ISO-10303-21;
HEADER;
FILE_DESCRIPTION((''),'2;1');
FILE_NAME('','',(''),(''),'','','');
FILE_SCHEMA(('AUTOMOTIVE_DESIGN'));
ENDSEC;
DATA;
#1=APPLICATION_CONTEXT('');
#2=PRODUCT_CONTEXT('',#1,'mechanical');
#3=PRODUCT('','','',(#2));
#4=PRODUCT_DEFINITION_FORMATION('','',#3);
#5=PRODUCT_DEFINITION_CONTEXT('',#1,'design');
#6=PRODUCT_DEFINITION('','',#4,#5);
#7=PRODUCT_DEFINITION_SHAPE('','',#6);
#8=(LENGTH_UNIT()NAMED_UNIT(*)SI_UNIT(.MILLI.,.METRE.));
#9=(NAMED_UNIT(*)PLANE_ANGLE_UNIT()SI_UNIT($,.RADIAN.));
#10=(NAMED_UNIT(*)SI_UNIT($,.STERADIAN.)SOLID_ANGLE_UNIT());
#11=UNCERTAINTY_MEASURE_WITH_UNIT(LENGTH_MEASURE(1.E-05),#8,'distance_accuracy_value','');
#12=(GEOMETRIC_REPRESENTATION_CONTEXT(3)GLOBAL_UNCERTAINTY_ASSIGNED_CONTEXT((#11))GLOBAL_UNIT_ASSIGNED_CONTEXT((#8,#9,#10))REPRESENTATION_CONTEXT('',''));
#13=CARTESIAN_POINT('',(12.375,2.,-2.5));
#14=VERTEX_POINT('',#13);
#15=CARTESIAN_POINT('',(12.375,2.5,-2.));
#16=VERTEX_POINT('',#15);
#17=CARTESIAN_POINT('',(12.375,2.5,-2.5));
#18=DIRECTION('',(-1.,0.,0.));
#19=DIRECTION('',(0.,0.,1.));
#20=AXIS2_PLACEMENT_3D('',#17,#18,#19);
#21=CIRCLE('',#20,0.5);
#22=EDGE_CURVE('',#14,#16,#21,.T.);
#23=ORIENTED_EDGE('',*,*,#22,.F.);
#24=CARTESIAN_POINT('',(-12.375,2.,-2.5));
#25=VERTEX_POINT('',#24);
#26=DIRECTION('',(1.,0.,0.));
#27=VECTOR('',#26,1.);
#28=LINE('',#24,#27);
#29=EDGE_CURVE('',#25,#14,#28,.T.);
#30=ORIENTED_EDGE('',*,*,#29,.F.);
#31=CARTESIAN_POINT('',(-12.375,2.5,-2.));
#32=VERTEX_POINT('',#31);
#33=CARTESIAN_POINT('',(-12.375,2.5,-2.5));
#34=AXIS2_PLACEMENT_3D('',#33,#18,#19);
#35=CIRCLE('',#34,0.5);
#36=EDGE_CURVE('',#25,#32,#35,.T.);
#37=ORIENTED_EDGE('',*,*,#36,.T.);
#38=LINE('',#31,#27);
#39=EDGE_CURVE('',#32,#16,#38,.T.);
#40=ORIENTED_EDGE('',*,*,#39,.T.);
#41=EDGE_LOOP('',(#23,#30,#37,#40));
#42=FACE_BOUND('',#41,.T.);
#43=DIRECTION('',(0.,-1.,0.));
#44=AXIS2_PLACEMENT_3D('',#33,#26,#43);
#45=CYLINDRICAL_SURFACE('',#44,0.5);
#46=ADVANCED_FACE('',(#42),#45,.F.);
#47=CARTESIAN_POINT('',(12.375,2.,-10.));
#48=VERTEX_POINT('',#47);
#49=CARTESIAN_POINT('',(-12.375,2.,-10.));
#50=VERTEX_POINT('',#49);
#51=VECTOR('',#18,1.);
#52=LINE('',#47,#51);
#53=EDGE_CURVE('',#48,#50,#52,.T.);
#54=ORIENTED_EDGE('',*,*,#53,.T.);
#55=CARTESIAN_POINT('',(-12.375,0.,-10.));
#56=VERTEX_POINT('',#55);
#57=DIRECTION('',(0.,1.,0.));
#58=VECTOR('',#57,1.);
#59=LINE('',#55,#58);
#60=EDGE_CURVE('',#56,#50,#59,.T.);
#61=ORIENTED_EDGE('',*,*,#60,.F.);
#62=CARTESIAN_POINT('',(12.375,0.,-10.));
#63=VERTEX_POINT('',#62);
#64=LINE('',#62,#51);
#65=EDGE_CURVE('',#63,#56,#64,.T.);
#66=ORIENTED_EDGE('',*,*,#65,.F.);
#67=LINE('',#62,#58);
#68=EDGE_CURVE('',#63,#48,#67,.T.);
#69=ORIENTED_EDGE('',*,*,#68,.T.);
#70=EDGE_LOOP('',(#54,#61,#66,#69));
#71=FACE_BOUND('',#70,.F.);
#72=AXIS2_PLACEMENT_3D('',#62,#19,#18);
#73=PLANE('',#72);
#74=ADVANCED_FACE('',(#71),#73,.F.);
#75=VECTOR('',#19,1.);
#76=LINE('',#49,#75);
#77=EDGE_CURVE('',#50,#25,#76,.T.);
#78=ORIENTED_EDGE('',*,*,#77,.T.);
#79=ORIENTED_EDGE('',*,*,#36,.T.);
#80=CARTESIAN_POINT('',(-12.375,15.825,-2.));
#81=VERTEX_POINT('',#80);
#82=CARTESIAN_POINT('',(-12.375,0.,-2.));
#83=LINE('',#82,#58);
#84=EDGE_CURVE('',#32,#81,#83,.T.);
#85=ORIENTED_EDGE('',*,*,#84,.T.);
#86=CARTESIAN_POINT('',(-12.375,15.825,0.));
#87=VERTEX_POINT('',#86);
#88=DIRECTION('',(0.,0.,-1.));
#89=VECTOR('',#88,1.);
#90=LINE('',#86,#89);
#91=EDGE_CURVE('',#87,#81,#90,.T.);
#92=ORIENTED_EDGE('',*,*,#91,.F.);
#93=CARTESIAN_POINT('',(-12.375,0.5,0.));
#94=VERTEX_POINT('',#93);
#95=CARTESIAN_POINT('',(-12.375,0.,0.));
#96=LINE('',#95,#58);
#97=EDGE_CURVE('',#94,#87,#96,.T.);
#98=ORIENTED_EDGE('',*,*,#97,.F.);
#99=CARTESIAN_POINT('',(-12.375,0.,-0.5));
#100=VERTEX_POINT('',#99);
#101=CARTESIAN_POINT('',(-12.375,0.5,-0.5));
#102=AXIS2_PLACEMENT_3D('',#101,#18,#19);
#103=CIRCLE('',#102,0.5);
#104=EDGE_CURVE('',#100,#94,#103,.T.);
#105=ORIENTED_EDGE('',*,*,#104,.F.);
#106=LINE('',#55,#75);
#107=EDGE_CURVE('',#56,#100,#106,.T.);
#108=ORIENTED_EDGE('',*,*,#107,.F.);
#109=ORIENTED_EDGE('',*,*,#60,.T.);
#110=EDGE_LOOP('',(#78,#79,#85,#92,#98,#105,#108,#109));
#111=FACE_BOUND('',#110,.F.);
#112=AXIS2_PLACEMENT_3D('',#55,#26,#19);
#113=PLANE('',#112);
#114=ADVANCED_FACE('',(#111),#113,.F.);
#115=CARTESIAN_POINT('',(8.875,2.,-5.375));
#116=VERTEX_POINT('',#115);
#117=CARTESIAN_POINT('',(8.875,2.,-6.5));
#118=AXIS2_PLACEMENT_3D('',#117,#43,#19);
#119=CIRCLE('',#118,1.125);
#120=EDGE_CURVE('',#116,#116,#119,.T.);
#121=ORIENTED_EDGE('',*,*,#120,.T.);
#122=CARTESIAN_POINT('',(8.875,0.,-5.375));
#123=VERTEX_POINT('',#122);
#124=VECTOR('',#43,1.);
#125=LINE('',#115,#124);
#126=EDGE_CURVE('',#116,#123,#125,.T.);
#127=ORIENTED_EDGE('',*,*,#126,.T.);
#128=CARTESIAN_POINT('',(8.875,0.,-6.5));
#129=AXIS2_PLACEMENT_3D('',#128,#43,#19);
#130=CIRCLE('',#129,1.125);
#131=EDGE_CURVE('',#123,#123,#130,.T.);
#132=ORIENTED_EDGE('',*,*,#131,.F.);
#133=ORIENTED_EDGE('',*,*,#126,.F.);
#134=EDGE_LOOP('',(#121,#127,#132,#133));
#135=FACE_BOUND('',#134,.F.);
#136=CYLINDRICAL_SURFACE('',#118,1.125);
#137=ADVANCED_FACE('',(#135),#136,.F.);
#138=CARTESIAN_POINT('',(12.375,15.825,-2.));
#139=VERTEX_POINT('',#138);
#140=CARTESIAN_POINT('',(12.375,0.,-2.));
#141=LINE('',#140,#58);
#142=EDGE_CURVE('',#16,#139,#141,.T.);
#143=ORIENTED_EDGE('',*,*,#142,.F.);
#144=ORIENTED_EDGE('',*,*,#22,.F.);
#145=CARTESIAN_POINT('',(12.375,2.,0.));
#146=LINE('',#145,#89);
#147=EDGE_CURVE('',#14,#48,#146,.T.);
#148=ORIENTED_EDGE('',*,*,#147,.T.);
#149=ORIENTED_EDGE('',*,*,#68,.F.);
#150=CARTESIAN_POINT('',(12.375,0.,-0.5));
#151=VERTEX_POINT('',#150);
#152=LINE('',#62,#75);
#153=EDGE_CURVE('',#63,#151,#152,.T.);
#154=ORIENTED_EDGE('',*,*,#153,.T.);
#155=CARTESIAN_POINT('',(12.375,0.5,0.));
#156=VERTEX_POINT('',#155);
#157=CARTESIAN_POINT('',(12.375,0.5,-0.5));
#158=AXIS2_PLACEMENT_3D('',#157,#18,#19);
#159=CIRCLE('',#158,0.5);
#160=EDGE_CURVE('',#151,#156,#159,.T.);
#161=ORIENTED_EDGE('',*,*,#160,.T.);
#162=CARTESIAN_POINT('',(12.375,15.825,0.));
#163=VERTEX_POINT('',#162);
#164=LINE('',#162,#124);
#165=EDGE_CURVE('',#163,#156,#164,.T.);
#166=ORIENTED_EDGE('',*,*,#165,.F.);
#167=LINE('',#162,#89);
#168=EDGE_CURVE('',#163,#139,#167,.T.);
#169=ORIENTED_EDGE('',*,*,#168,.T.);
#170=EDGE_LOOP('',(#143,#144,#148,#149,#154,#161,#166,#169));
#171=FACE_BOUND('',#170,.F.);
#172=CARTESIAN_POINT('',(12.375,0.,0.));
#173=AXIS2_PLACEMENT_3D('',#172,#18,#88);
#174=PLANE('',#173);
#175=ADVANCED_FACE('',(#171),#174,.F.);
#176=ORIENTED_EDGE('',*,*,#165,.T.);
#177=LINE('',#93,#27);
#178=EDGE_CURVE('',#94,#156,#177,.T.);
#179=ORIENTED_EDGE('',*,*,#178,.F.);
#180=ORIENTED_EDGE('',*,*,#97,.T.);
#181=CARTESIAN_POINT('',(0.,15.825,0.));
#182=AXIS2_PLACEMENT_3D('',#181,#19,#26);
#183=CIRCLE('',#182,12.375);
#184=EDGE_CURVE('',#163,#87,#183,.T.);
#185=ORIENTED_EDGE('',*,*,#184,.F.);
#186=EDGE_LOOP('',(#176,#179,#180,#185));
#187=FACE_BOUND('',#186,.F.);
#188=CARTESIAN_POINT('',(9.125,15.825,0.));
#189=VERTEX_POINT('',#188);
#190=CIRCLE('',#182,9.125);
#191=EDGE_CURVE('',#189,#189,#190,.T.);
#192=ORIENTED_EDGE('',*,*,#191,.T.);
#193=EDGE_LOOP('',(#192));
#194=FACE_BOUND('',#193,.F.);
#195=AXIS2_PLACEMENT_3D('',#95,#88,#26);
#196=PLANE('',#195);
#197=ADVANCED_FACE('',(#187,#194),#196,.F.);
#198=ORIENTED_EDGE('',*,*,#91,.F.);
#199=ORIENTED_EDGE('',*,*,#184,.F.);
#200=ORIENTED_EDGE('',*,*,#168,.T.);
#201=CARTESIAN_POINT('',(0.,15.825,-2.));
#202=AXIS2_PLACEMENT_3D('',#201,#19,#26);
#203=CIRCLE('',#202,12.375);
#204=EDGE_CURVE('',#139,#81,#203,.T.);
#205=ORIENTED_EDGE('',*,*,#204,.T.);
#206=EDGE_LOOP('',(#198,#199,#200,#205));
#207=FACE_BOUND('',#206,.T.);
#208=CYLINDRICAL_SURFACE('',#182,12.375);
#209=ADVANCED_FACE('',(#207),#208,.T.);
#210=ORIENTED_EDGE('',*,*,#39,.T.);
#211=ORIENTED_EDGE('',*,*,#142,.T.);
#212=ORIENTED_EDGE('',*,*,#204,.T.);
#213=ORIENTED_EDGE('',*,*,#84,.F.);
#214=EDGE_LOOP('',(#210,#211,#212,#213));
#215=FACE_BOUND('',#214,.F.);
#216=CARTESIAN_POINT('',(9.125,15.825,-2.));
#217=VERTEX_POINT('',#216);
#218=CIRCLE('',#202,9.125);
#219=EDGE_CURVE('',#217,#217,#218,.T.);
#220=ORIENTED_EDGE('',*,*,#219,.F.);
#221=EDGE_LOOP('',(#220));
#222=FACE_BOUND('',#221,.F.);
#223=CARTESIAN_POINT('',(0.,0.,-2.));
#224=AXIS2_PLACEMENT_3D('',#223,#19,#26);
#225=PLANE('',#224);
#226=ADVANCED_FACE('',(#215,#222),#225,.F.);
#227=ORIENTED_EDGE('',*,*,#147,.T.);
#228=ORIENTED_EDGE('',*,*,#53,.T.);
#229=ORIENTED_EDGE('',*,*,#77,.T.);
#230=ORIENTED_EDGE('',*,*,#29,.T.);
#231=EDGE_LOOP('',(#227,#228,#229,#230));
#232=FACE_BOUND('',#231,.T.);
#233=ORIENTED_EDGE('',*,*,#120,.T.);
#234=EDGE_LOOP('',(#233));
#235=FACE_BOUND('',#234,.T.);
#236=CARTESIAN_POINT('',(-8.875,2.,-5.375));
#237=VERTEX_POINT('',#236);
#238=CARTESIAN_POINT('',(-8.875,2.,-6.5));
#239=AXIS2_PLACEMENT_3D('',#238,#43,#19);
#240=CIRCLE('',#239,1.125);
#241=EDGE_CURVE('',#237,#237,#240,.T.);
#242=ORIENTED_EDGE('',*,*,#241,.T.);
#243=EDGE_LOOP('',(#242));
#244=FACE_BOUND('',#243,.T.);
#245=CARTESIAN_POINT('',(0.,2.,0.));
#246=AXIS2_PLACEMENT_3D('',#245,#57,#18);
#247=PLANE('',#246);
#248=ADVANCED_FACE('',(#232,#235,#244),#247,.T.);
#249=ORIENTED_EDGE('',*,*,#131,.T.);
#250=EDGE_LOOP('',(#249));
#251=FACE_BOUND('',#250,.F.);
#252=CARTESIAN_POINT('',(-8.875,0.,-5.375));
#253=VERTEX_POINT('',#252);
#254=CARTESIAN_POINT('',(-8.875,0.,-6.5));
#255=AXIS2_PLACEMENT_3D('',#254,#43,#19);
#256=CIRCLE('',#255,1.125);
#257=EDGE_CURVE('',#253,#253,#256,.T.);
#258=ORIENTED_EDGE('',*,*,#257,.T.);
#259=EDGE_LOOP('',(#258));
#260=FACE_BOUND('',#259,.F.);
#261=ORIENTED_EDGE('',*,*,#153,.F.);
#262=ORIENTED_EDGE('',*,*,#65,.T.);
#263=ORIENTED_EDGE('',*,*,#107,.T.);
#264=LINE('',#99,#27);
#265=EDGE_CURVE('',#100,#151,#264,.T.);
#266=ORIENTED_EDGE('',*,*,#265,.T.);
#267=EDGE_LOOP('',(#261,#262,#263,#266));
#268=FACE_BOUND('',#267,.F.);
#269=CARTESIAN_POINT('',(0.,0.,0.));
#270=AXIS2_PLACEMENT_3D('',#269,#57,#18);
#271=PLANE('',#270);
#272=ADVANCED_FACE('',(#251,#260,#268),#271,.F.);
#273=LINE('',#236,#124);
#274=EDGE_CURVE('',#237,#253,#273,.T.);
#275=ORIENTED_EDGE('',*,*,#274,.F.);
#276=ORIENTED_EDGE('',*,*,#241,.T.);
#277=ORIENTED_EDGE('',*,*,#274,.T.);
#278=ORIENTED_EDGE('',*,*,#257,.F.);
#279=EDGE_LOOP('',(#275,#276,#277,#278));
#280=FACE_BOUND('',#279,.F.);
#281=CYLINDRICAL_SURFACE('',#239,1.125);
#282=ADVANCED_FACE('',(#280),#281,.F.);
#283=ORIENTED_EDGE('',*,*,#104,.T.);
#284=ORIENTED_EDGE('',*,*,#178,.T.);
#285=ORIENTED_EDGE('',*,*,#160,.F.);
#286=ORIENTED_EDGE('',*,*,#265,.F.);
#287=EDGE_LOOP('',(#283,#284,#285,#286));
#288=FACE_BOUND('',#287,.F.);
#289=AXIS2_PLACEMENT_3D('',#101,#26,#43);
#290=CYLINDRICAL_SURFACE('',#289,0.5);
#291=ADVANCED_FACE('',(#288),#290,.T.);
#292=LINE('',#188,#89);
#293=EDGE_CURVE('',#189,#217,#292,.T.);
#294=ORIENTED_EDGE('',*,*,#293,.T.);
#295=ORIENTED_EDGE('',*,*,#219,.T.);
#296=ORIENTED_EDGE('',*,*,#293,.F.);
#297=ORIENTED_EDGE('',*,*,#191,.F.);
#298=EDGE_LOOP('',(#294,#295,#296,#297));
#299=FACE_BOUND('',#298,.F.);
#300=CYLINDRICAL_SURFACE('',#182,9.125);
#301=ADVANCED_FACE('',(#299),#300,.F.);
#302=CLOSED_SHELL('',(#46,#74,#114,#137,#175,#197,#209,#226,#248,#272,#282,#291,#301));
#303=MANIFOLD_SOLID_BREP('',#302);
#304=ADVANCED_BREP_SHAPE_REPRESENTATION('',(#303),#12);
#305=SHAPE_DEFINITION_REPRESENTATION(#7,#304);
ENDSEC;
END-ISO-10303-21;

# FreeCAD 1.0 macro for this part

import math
import FreeCAD as App
import Part
import Sketcher

V = App.Vector
Q = App.Units.Quantity


def edges_at(feature, points):
    """Names of the edges that pass closest to the given points."""
    edges = feature.Shape.Edges
    near = lambda p: min(range(len(edges)), key=lambda i: edges[i].distToShape(Part.Vertex(*p))[0])
    return sorted({f"Edge{near(p) + 1}" for p in points})


def add_polygon(sketch, points):
    """Adds a closed chain of lines whose ends are joined by coincident constraints."""
    first, n = sketch.GeometryCount, len(points)
    for a, b in zip(points, points[1:] + points[:1]):
        sketch.addGeometry(Part.LineSegment(App.Vector(*a, 0), App.Vector(*b, 0)), False)
    for i in range(n):
        sketch.addConstraint(Sketcher.Constraint("Coincident", first + i, 2, first + (i + 1) % n, 1))

doc = App.newDocument("Part")
params = doc.addObject("Spreadsheet::Sheet", "Params")
for row, (alias, value) in enumerate([
    ("sketch1_height", "10 mm"),
    ("sketch1_width", "24.75 mm"),
    ("pad1_length", "2 mm"),
    ("sketch2_diameter", "18.25 mm"),
    ("pad2_length", "2 mm"),
    ("sketch3_diameter", "2.25 mm"),
    ("hole_diameter", "2.25 mm"),
    ("linearpattern_pitch", "17.75 mm"),
    ("fillet_radius", "0.5 mm"),
], start=1):
    params.set(f"A{row}", alias)
    params.set(f"B{row}", "=" + value)
    params.setAlias(f"B{row}", alias)

body = doc.addObject("PartDesign::Body", "Body")

sketch1 = body.newObject("Sketcher::SketchObject", "Sketch")
sketch1.AttachmentSupport = (doc.getObject("XZ_Plane"), [""])
sketch1.MapMode = "FlatFace"
add_polygon(sketch1, [(-12, -10), (-12, 0), (12, 0), (12, -10)])
sketch1.addConstraint(Sketcher.Constraint("Vertical", 0))
sketch1.addConstraint(Sketcher.Constraint("Horizontal", 1))
sketch1.addConstraint(Sketcher.Constraint("Vertical", 2))
sketch1.addConstraint(Sketcher.Constraint("Horizontal", 3))
sketch1.addConstraint(Sketcher.Constraint("Symmetric", 0, 2, 1, 2, -1, 1))
sketch1.addConstraint(Sketcher.Constraint("DistanceY", 0, 1, 0, 2, Q("10 mm")))
sketch1.addConstraint(Sketcher.Constraint("DistanceX", 1, 1, 1, 2, Q("24.75 mm")))
sketch1.setExpression("Constraints[9]", "Params.sketch1_height")
sketch1.setExpression("Constraints[10]", "Params.sketch1_width")
pad1 = body.newObject("PartDesign::Pad", "Pad")
pad1.Profile = sketch1
pad1.setExpression("Length", "Params.pad1_length")
pad1.Reversed = True

sketch2 = body.newObject("Sketcher::SketchObject", "Sketch001")
sketch2.AttachmentSupport = (doc.getObject("XY_Plane"), [""])
sketch2.MapMode = "FlatFace"
sketch2.addGeometry(Part.LineSegment(V(-12, 16, 0), V(-12, 0, 0)), False)
sketch2.addGeometry(Part.LineSegment(V(-12, 0, 0), V(12, 0, 0)), False)
sketch2.addGeometry(Part.LineSegment(V(12, 0, 0), V(12, 16, 0)), False)
sketch2.addGeometry(Part.ArcOfCircle(Part.Circle(V(0, 16, 0), V(0, 0, 1), 12), math.radians(0), math.radians(180)), False)
sketch2.addGeometry(Part.Circle(V(0, 16, 0), V(0, 0, 1), 9), False)
sketch2.addConstraint(Sketcher.Constraint("Coincident", 0, 2, 1, 1))
sketch2.addConstraint(Sketcher.Constraint("Coincident", 1, 2, 2, 1))
sketch2.addConstraint(Sketcher.Constraint("Tangent", 2, 2, 3, 1))
sketch2.addConstraint(Sketcher.Constraint("Tangent", 3, 2, 0, 1))
sketch2.addConstraint(Sketcher.Constraint("Vertical", 0))
sketch2.addConstraint(Sketcher.Constraint("Horizontal", 1))
sketch2.addConstraint(Sketcher.Constraint("Vertical", 2))
sketch2.addConstraint(Sketcher.Constraint("Coincident", 4, 3, 3, 3))
sketch2.addConstraint(Sketcher.Constraint("Symmetric", 0, 2, 1, 2, -1, 1))
sketch2.addConstraint(Sketcher.Constraint("Diameter", 4, Q("18.25 mm")))
sketch2.addConstraint(Sketcher.Constraint("Radius", 3, Q("12.375 mm")))
sketch2.addConstraint(Sketcher.Constraint("DistanceY", 0, 2, 0, 1, Q("15.825 mm")))
sketch2.setExpression("Constraints[9]", "Params.sketch2_diameter")
pad2 = body.newObject("PartDesign::Pad", "Pad001")
pad2.Profile = sketch2
pad2.setExpression("Length", "Params.pad2_length")
pad2.Reversed = True

sketch3 = body.newObject("Sketcher::SketchObject", "Sketch002")
sketch3.AttachmentSupport = (doc.getObject("XZ_Plane"), [""])
sketch3.MapMode = "FlatFace"
sketch3.AttachmentOffset = App.Placement(V(0, 0, -2), App.Rotation())
sketch3.addGeometry(Part.Circle(V(-8.9, -6.5, 0), V(0, 0, 1), 1.1), False)
sketch3.addConstraint(Sketcher.Constraint("Diameter", 0, Q("2.25 mm")))
sketch3.addConstraint(Sketcher.Constraint("DistanceY", 0, 3, -1, 1, Q("6.5 mm")))
sketch3.addConstraint(Sketcher.Constraint("DistanceX", 0, 3, -1, 1, Q("8.875 mm")))
sketch3.setExpression("Constraints[0]", "Params.sketch3_diameter")
doc.recompute()
hole = body.newObject("PartDesign::Hole", "Hole")
hole.Profile = sketch3
hole.ThreadType = "None"
hole.setExpression("Diameter", "Params.hole_diameter")
hole.DepthType = "ThroughAll"
hole.Reversed = True
doc.recompute()

linearpattern = body.newObject("PartDesign::LinearPattern", "LinearPattern")
linearpattern.Originals = [hole]
linearpattern.Direction = (doc.getObject("X_Axis"), [""])
linearpattern.Mode = "offset"
linearpattern.setExpression("Offset", "Params.linearpattern_pitch")
linearpattern.Occurrences = 2
body.Tip = linearpattern
doc.recompute()

fillet = body.newObject("PartDesign::Fillet", "Fillet")
fillet.Base = (linearpattern, edges_at(linearpattern, [(0, 0, 0), (0, 2, -2)]))
fillet.setExpression("Radius", "Params.fillet_radius")

doc.recompute()
